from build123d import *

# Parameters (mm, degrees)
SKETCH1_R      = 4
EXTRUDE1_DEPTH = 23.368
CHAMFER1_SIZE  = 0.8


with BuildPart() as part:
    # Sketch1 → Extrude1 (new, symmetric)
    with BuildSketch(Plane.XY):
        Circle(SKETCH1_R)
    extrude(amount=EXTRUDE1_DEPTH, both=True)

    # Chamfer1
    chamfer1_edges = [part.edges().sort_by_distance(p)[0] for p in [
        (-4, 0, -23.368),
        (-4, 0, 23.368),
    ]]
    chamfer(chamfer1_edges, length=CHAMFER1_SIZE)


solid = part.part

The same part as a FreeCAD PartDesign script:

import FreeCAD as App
import Part
import Sketcher

V = App.Vector
Q = App.Units.Quantity


def edges_at(feature, points):
    """Names of the edges that pass closest to the given points."""
    edges = feature.Shape.Edges
    near = lambda p: min(range(len(edges)), key=lambda i: edges[i].distToShape(Part.Vertex(*p))[0])
    return sorted({f"Edge{near(p) + 1}" for p in points})

doc = App.newDocument("Part")
body = doc.addObject("PartDesign::Body", "Body")

# Sketch on XY plane
sketch1 = body.newObject("Sketcher::SketchObject", "Sketch")
sketch1.AttachmentSupport = (doc.getObject("XY_Plane"), [""])
sketch1.MapMode = "FlatFace"
sketch1.addGeometry(Part.Circle(V(0, 0, 0), V(0, 0, 1), 4), False)
sketch1.addConstraint(Sketcher.Constraint("Coincident", 0, 3, -1, 1))
sketch1.addConstraint(Sketcher.Constraint("Diameter", 0, Q("8 mm")))
pad1 = body.newObject("PartDesign::Pad", "Pad")
pad1.Profile = sketch1
pad1.Length = 46.736
pad1.Midplane = True
doc.recompute()

chamfer = body.newObject("PartDesign::Chamfer", "Chamfer")
chamfer.Base = (pad1, edges_at(pad1, [(-4, 0, -23.368), (-4, 0, 23.368)]))
chamfer.Size = 0.8

doc.recompute()
